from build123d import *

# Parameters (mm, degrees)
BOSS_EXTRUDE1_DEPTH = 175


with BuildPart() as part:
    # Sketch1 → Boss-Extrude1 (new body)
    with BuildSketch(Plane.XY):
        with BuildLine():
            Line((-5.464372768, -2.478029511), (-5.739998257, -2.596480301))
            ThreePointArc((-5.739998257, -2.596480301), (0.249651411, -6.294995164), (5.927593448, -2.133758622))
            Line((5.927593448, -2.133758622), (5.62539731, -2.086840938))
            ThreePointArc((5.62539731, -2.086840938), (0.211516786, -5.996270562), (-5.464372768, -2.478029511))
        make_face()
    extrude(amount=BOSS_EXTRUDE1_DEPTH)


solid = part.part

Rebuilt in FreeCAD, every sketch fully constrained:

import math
import FreeCAD as App
import Part
import Sketcher
from FreeCAD import Vector
Q = App.Units.Quantity

doc = App.newDocument("Part")
params = doc.addObject("Spreadsheet::Sheet", "Params")
for row, (alias, value) in enumerate([
    ("sketch1_radius", "6 mm"),
    ("sketch1_length", "0.3 mm"),
    ("pad1_length", "175 mm"),
], start=1):
    params.set(f"A{row}", alias)
    params.set(f"B{row}", "=" + value)
    params.setAlias(f"B{row}", alias)

body = doc.addObject("PartDesign::Body", "Body")

# Sketch on XY plane
sketch1 = body.newObject("Sketcher::SketchObject", "Sketch")
sketch1.AttachmentSupport = (doc.getObject("XY_Plane"), [""])
sketch1.MapMode = "FlatFace"
sketch1.addGeometry([
    Part.LineSegment(Vector(-5.46, -2.48, 0), Vector(-5.74, -2.6, 0)),
    Part.ArcOfCircle(Part.Circle(Vector(0, 0, 0), Vector(0, 0, 1), 6.3), math.radians(-156), math.radians(-20)),
    Part.LineSegment(Vector(5.93, -2.13, 0), Vector(5.63, -2.09, 0)),
    Part.ArcOfCircle(Part.Circle(Vector(0, 0, 0), Vector(0, 0, 1), 6), math.radians(-156), math.radians(-20)),
], False)
sketch1.addConstraint([
    Sketcher.Constraint("Coincident", 0, 2, 1, 1),
    Sketcher.Constraint("Coincident", 1, 2, 2, 1),
    Sketcher.Constraint("Coincident", 2, 2, 3, 2),
    Sketcher.Constraint("Coincident", 3, 1, 0, 1),
    Sketcher.Constraint("Coincident", 1, 3, -1, 1),
    Sketcher.Constraint("Coincident", 3, 3, -1, 1),
    Sketcher.Constraint("Radius", 3, Q("6 mm")),
    Sketcher.Constraint("Distance", 0, Q("0.3 mm")),
    Sketcher.Constraint("DistanceX", 0, 2, -1, 1, Q("5.739998 mm")),
    Sketcher.Constraint("Radius", 1, Q("6.299944 mm")),
    Sketcher.Constraint("DistanceY", 1, 2, -1, 1, Q("2.133759 mm")),
    Sketcher.Constraint("DistanceY", 2, 2, -1, 1, Q("2.086841 mm")),
])
sketch1.setExpression("Constraints[6]", "Params.sketch1_radius")
sketch1.setExpression("Constraints[7]", "Params.sketch1_length")
pad1 = body.newObject("PartDesign::Pad", "Pad")
pad1.Profile = sketch1
pad1.setExpression("Length", "Params.pad1_length")

doc.recompute()
